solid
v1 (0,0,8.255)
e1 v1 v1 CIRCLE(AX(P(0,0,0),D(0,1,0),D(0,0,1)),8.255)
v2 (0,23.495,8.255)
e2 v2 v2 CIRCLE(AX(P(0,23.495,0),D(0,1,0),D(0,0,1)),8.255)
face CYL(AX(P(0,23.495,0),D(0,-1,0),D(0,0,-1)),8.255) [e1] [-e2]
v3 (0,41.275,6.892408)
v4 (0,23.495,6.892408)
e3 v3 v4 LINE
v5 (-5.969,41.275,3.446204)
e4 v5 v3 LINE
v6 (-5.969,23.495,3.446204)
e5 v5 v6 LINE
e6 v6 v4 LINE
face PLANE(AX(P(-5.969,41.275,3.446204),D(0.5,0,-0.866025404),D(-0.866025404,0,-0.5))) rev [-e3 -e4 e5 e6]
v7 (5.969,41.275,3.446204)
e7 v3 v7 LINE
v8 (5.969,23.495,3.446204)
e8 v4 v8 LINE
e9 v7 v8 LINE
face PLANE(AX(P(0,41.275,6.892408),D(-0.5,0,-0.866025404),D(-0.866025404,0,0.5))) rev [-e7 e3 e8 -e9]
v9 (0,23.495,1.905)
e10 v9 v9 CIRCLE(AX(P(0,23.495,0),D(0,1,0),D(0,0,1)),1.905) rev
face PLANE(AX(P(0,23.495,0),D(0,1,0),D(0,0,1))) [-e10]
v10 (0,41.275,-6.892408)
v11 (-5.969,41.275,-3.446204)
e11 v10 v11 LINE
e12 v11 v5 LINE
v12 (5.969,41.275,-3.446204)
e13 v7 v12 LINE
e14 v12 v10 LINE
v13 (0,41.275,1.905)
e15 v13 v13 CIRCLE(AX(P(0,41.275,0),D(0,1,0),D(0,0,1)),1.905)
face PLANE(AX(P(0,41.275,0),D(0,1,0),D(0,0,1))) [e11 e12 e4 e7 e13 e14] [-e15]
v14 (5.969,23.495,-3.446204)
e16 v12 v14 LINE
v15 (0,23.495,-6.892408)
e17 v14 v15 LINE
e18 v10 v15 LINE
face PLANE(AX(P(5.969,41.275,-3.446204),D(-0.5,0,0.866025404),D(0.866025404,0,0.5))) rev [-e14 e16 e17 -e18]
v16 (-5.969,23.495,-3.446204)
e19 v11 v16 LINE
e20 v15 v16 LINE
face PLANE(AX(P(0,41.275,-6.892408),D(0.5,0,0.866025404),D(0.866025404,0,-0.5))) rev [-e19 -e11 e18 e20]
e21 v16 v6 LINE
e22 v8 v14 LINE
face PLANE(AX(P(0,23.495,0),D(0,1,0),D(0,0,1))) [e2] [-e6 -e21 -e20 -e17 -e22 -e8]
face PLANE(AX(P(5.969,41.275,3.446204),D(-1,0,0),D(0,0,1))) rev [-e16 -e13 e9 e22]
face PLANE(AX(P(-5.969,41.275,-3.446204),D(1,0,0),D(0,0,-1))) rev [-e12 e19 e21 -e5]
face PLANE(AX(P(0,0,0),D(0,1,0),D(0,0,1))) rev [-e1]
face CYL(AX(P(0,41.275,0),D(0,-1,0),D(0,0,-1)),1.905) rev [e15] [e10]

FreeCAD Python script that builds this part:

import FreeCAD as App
import Part
import Sketcher
Q = App.Units.Quantity

doc = App.newDocument("Part")
body = doc.addObject("PartDesign::Body", "Body")

# Sketch on XZ plane
sketch1 = doc.addObject("Sketcher::SketchObject", "Sketch")
body.addObject(sketch1)
sketch1.AttachmentSupport = (doc.XZ_Plane, [""])
sketch1.MapMode = "FlatFace"
sketch1.addGeometry(Part.Circle(App.Vector(0, 0, 0), App.Vector(0, 0, 1), 8.255), False)
sketch1.addConstraint(Sketcher.Constraint("Coincident", 0, 3, -1, 1))
sketch1.addConstraint(Sketcher.Constraint("Diameter", 0, Q("0.65 in")))
pad1 = doc.addObject("PartDesign::Pad", "Pad")
body.addObject(pad1)
pad1.Profile = sketch1
pad1.Length = Q("0.925 in")
pad1.Reversed = True

# Sketch on XZ plane
sketch2 = doc.addObject("Sketcher::SketchObject", "Sketch001")
body.addObject(sketch2)
sketch2.AttachmentSupport = (doc.XZ_Plane, [""])
sketch2.MapMode = "FlatFace"
sketch2.AttachmentOffset = App.Placement(App.Vector(0, 0, -0.925 * 25.4), App.Rotation())
sketch2.addGeometry(Part.LineSegment(App.Vector(0, -6.892408, 0), App.Vector(-5.969, -3.446204, 0)), False)
sketch2.addGeometry(Part.LineSegment(App.Vector(-5.969, -3.446204, 0), App.Vector(-5.969, 3.446204, 0)), False)
sketch2.addGeometry(Part.LineSegment(App.Vector(-5.969, 3.446204, 0), App.Vector(0, 6.892408, 0)), False)
sketch2.addGeometry(Part.LineSegment(App.Vector(0, 6.892408, 0), App.Vector(5.969, 3.446204, 0)), False)
sketch2.addGeometry(Part.LineSegment(App.Vector(5.969, 3.446204, 0), App.Vector(5.969, -3.446204, 0)), False)
sketch2.addGeometry(Part.LineSegment(App.Vector(5.969, -3.446204, 0), App.Vector(0, -6.892408, 0)), False)
sketch2.addGeometry(Part.Circle(App.Vector(0, 0, 0), App.Vector(0, 0, 1), 1.905), False)
sketch2.addConstraint(Sketcher.Constraint("Coincident", 0, 2, 1, 1))
sketch2.addConstraint(Sketcher.Constraint("Coincident", 1, 2, 2, 1))
sketch2.addConstraint(Sketcher.Constraint("Coincident", 2, 2, 3, 1))
sketch2.addConstraint(Sketcher.Constraint("Coincident", 3, 2, 4, 1))
sketch2.addConstraint(Sketcher.Constraint("Coincident", 4, 2, 5, 1))
sketch2.addConstraint(Sketcher.Constraint("Coincident", 5, 2, 0, 1))
sketch2.addConstraint(Sketcher.Constraint("Vertical", 1))
sketch2.addConstraint(Sketcher.Constraint("Vertical", 4))
sketch2.addConstraint(Sketcher.Constraint("Coincident", 6, 3, -1, 1))
sketch2.addConstraint(Sketcher.Constraint("Symmetric", 0, 2, 3, 2, -1, 1))
sketch2.addConstraint(Sketcher.Constraint("Symmetric", 2, 2, 5, 2, -1, 1))
sketch2.addConstraint(Sketcher.Constraint("PointOnObject", 2, 2, -2))
sketch2.addConstraint(Sketcher.Constraint("Parallel", 2, 5))
sketch2.addConstraint(Sketcher.Constraint("Horizontal", 1, 2, 3, 2))
sketch2.addConstraint(Sketcher.Constraint("Diameter", 6, Q("0.15 in")))
sketch2.addConstraint(Sketcher.Constraint("Angle", 0, Q("150 deg")))
sketch2.addConstraint(Sketcher.Constraint("DistanceX", 1, 2, 3, 2, Q("0.47 in")))
sketch2.addConstraint(Sketcher.Constraint("DistanceY", 1, 1, 1, 2, Q("6.892408 mm")))
pad2 = doc.addObject("PartDesign::Pad", "Pad001")
body.addObject(pad2)
pad2.Profile = sketch2
pad2.Length = Q("0.7 in")
pad2.Reversed = True

doc.recompute()
